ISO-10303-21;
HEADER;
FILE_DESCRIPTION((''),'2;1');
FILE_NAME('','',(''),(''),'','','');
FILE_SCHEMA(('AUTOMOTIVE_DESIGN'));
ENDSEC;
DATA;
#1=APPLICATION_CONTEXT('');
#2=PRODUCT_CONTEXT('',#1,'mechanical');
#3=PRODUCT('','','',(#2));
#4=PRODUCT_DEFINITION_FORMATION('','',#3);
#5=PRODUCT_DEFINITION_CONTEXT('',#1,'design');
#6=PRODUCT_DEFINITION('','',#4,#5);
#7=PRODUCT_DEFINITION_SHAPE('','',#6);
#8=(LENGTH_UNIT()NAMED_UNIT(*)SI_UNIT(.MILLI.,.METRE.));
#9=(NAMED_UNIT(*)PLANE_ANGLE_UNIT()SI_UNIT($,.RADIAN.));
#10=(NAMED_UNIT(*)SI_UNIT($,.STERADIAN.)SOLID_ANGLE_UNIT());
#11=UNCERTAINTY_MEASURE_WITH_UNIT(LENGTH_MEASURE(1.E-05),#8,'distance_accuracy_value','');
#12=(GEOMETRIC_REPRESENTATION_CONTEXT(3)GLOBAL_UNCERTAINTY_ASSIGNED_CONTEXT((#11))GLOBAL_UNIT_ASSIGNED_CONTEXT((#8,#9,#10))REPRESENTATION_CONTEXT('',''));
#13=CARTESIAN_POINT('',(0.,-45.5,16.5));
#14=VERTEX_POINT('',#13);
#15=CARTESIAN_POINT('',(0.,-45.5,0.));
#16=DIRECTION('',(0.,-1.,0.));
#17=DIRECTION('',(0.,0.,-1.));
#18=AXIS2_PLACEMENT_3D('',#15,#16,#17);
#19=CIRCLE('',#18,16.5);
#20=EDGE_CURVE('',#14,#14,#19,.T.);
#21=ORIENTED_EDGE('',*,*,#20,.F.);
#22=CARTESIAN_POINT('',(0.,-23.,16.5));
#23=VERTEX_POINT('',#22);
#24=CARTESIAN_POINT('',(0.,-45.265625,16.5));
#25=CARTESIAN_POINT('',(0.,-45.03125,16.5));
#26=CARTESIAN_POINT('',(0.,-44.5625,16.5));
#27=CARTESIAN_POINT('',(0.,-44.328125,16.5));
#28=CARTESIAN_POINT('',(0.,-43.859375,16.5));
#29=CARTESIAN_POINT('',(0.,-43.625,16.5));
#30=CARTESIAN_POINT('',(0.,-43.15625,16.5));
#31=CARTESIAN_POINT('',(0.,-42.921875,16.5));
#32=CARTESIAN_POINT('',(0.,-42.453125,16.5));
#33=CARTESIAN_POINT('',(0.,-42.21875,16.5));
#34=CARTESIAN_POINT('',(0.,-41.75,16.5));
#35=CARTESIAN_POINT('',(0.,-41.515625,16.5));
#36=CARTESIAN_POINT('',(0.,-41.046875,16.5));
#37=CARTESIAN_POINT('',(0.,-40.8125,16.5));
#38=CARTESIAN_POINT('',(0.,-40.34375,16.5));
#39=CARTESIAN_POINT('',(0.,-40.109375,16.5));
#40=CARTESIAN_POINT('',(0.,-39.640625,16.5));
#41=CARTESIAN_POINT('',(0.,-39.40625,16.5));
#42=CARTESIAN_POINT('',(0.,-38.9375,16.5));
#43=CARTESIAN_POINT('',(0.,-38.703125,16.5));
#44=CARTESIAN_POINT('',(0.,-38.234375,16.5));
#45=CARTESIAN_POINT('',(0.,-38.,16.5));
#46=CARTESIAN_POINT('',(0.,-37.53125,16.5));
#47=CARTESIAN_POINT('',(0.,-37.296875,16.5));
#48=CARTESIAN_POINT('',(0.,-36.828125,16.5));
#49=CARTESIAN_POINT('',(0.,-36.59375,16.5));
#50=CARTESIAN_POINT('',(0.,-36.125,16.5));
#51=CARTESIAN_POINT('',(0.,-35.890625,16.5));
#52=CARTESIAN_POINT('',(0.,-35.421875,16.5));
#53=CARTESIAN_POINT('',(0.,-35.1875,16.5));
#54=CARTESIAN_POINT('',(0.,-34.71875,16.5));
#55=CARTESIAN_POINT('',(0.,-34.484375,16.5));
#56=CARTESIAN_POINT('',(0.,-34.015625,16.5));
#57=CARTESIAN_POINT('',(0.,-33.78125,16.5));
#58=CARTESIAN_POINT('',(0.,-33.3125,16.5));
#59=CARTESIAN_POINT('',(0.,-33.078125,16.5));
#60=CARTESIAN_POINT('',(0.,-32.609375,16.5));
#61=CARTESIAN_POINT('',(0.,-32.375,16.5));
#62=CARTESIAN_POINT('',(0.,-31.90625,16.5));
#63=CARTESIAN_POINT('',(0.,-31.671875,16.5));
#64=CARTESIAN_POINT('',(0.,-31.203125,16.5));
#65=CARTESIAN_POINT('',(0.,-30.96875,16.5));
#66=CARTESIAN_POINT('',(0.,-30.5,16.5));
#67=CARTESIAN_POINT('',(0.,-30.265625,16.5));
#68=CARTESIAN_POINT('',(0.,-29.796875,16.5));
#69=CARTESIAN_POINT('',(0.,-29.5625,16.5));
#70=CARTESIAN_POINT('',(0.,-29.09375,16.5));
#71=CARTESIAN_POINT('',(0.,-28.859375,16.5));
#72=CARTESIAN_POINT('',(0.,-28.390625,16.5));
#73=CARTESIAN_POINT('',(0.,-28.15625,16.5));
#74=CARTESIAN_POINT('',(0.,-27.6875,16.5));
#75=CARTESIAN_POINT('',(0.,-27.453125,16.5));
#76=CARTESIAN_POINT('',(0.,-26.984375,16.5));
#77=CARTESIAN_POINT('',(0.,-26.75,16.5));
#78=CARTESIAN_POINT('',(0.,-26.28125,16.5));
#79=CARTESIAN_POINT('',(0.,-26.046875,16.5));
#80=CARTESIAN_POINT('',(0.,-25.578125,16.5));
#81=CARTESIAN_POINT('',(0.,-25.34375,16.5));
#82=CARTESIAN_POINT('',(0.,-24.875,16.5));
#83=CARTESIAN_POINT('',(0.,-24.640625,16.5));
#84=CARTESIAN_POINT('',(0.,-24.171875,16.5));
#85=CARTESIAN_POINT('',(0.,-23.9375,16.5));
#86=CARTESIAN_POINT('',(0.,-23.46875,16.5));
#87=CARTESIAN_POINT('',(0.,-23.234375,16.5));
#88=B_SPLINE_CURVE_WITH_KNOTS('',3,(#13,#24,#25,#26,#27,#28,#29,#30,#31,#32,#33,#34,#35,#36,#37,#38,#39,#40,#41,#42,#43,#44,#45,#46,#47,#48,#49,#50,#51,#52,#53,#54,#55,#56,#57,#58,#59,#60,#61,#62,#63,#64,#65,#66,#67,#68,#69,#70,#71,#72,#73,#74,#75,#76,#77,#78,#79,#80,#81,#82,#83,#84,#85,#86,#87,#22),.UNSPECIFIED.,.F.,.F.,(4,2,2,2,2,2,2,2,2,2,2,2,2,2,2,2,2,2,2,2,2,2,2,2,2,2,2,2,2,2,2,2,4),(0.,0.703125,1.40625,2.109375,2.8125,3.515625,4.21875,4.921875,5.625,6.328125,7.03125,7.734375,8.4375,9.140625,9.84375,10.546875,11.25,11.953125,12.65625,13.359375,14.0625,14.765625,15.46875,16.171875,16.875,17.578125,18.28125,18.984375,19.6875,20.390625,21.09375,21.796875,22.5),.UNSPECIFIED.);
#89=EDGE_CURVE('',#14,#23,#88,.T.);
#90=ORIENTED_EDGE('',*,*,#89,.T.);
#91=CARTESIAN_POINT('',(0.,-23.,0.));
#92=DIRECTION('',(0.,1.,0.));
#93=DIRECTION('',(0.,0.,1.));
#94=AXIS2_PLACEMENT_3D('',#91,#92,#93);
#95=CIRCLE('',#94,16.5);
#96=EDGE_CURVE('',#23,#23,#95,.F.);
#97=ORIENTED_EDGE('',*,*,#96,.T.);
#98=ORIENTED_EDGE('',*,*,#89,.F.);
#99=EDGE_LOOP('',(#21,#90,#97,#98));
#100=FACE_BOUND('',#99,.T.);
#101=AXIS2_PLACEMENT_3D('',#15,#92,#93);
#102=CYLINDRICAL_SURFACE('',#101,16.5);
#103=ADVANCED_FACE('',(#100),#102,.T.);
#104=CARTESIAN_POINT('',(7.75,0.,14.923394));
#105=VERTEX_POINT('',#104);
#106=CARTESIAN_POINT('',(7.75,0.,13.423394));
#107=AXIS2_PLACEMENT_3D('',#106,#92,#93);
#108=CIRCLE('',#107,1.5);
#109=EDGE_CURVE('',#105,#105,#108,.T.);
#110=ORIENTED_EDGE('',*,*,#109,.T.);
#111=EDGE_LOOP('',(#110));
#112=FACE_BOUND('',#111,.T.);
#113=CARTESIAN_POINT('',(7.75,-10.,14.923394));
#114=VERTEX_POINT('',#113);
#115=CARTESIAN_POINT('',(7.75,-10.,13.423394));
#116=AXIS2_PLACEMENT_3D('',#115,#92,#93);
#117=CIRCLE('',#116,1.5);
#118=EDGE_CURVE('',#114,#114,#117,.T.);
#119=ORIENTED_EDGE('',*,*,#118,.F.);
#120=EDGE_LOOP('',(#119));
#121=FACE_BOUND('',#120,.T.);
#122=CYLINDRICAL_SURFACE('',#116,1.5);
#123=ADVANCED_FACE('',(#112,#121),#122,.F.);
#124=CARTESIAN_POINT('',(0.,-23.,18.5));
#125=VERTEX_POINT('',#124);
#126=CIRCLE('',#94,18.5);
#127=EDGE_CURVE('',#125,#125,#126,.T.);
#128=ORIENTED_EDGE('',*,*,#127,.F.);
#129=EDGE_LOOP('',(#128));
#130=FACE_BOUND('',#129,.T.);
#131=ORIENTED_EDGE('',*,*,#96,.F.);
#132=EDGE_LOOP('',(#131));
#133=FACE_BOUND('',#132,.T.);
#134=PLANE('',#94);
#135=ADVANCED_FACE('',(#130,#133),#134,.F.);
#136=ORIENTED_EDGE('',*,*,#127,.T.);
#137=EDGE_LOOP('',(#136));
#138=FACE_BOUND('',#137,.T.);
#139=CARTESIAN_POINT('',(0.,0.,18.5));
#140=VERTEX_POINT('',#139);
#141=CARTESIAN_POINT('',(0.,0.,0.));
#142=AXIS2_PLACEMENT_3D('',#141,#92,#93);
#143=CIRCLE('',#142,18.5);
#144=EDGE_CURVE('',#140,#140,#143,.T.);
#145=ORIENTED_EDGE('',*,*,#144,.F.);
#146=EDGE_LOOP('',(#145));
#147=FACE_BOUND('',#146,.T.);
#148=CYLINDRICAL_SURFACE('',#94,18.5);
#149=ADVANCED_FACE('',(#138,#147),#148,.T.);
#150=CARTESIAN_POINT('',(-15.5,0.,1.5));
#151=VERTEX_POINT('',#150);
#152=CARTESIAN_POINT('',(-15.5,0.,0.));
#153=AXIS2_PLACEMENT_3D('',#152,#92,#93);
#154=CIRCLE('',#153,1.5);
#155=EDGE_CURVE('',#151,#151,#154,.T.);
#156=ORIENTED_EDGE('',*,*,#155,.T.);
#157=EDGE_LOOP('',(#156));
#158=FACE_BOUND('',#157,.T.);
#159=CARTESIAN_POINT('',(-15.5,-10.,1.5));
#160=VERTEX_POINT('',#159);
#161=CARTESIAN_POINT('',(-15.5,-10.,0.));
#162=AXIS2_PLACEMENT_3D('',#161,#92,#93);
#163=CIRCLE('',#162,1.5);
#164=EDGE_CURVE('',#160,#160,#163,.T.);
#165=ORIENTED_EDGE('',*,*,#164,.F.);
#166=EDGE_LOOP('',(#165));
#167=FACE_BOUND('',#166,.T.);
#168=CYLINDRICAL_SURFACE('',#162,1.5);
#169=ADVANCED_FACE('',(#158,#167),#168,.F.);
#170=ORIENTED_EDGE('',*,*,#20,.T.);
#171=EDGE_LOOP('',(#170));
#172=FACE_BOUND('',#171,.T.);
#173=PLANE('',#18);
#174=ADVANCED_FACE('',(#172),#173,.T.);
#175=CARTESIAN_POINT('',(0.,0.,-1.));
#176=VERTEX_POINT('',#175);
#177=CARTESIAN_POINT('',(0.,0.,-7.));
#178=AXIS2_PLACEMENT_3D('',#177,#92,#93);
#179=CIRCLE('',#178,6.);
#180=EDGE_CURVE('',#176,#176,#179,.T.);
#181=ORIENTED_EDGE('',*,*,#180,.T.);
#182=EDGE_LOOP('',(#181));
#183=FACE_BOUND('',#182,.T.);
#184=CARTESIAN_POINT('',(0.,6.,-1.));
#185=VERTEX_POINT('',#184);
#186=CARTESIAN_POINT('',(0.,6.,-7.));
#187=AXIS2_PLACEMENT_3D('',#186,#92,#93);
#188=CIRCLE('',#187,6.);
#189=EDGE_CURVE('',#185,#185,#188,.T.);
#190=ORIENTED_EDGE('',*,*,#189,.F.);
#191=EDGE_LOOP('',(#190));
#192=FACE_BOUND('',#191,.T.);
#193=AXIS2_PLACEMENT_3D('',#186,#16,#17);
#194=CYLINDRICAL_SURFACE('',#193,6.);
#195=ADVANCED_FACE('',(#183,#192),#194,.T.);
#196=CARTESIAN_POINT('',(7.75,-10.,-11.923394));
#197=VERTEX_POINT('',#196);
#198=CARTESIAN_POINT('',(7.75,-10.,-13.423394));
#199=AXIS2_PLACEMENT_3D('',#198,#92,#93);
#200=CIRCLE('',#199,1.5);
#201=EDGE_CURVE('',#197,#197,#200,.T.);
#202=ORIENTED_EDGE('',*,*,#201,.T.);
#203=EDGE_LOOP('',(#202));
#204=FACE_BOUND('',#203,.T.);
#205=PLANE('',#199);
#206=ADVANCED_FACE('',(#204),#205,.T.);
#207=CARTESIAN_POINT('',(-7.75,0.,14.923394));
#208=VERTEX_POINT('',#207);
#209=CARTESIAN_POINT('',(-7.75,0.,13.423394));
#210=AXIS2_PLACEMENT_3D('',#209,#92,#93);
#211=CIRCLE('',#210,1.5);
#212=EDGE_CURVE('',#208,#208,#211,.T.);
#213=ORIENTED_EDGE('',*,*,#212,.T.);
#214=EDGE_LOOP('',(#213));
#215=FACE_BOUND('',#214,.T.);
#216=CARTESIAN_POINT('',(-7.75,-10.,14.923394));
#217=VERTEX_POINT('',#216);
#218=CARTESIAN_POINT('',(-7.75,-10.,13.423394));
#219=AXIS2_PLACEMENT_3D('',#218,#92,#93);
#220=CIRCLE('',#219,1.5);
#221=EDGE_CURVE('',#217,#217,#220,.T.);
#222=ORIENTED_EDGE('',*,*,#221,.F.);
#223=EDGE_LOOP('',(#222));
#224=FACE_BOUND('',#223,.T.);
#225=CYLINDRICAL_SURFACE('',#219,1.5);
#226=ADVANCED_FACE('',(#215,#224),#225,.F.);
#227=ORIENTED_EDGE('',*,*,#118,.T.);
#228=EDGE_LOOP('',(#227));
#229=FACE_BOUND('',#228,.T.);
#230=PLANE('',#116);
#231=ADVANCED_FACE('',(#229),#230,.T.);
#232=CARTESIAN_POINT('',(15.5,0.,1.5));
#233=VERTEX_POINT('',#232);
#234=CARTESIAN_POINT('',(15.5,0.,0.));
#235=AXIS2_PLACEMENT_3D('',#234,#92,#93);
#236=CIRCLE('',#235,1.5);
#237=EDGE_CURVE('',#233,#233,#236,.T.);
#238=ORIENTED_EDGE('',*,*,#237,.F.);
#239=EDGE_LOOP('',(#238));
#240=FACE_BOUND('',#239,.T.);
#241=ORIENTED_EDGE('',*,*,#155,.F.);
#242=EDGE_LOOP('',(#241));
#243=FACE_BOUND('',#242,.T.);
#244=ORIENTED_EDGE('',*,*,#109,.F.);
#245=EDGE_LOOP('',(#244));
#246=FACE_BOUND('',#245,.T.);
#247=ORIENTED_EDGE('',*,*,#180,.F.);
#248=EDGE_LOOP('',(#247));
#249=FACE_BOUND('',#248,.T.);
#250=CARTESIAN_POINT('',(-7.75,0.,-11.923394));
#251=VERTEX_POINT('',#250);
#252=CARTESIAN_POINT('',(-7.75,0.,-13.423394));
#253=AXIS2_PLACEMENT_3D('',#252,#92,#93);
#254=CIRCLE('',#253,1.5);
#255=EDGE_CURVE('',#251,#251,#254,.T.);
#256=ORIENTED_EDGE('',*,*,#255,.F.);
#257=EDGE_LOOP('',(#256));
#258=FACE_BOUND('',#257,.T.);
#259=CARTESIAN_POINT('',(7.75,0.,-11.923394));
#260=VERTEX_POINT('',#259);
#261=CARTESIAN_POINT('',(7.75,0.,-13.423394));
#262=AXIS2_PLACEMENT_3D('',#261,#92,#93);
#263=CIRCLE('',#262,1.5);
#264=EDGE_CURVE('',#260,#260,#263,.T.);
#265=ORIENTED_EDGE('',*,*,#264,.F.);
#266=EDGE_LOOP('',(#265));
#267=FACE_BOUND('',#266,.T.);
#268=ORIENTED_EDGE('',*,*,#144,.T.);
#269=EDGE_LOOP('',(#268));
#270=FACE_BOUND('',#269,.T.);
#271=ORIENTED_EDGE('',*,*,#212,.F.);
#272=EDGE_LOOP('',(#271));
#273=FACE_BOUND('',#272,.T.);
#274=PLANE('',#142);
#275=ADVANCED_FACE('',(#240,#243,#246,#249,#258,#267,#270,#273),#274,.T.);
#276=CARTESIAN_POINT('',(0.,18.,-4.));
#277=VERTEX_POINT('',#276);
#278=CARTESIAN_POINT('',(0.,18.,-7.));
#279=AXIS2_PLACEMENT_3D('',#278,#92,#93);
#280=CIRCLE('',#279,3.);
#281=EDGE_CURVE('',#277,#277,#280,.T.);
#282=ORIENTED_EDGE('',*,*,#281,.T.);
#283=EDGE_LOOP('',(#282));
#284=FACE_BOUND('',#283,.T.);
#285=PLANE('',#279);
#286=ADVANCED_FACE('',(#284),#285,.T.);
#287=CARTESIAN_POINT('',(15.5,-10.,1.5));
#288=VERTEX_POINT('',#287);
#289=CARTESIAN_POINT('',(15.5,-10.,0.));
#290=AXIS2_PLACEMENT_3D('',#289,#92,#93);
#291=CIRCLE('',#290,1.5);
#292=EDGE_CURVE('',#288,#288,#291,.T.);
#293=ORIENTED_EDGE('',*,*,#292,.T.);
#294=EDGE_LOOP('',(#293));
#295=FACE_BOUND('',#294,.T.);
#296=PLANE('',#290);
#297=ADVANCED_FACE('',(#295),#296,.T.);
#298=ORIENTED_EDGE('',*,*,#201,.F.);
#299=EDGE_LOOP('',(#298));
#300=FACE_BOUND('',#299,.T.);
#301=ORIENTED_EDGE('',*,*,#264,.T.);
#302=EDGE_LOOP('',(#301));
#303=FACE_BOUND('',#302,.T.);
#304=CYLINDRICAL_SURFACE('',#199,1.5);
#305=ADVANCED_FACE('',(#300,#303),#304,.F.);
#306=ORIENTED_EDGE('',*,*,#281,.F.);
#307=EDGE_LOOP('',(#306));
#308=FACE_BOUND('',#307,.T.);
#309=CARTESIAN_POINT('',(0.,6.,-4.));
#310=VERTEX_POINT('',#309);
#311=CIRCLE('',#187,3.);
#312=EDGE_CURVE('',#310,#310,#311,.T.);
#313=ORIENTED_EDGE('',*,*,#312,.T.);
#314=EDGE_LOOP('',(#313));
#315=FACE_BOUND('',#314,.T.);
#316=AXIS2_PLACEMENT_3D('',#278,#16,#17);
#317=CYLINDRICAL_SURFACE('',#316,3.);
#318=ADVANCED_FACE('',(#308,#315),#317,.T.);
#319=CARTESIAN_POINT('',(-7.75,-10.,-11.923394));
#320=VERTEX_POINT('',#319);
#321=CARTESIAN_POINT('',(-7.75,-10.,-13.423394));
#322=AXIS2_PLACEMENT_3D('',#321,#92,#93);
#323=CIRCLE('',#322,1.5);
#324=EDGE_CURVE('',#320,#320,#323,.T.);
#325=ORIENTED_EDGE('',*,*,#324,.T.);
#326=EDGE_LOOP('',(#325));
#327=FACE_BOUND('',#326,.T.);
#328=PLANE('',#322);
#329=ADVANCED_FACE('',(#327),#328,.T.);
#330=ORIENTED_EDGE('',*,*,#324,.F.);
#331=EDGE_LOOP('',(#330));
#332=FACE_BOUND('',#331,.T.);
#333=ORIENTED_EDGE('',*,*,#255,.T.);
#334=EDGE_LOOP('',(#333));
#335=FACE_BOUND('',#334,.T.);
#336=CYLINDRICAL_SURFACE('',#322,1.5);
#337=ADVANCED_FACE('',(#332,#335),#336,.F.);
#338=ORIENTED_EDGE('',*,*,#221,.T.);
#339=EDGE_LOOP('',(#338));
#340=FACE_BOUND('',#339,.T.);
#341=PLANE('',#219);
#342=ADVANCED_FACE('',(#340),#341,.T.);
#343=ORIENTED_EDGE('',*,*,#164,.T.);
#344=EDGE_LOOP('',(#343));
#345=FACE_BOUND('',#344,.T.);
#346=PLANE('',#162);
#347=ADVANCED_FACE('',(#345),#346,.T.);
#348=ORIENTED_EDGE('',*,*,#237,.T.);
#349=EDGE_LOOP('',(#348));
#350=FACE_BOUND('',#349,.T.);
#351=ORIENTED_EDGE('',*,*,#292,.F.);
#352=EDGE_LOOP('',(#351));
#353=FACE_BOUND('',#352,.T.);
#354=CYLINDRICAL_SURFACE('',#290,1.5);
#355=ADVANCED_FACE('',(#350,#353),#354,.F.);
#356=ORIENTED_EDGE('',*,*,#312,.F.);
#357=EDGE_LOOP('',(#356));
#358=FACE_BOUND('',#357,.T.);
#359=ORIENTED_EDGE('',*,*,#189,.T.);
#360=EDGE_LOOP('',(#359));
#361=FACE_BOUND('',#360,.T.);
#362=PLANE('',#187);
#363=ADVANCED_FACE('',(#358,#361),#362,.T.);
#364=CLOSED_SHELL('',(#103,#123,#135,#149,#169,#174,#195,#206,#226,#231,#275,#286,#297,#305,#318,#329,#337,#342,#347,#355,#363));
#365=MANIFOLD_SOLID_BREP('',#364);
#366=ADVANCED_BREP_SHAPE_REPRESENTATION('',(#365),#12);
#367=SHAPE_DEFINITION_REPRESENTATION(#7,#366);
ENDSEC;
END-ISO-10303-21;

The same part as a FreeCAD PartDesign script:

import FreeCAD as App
import Part
import Sketcher

V = App.Vector
Q = App.Units.Quantity

doc = App.newDocument("Part")
body = doc.addObject("PartDesign::Body", "Body")

# Sketch on XZ plane
sketch1 = body.newObject("Sketcher::SketchObject", "Sketch")
sketch1.AttachmentSupport = (doc.getObject("XZ_Plane"), [""])
sketch1.MapMode = "FlatFace"
sketch1.addGeometry(Part.Circle(V(0, 0, 0), V(0, 0, 1), 18), False)
sketch1.addConstraint([
    Sketcher.Constraint("Coincident", 0, 3, -1, 1),
    Sketcher.Constraint("Diameter", 0, Q("37 mm")),
])
pad1 = body.newObject("PartDesign::Pad", "Pad")
pad1.Profile = sketch1
pad1.Length = 23

# Sketch on XZ plane
sketch2 = body.newObject("Sketcher::SketchObject", "Sketch001")
sketch2.AttachmentSupport = (doc.getObject("XZ_Plane"), [""])
sketch2.MapMode = "FlatFace"
sketch2.AttachmentOffset = App.Placement(V(0, 0, 23), App.Rotation())
sketch2.addGeometry(Part.Circle(V(0, 0, 0), V(0, 0, 1), 16), False)
sketch2.addConstraint([
    Sketcher.Constraint("Coincident", 0, 3, -1, 1),
    Sketcher.Constraint("Diameter", 0, Q("33 mm")),
])
pad2 = body.newObject("PartDesign::Pad", "Pad001")
pad2.Profile = sketch2
pad2.Length = 22.5

# Sketch on XZ plane
sketch3 = body.newObject("Sketcher::SketchObject", "Sketch002")
sketch3.AttachmentSupport = (doc.getObject("XZ_Plane"), [""])
sketch3.MapMode = "FlatFace"
sketch3.addGeometry([
    Part.Circle(V(-15.5, 0, 0), V(0, 0, 1), 1.5),  # 0
    Part.Circle(V(-7.8, -13.4, 0), V(0, 0, 1), 1.5),  # 1
    Part.Circle(V(7.8, -13.4, 0), V(0, 0, 1), 1.5),  # 2
    Part.Circle(V(15.5, 0, 0), V(0, 0, 1), 1.5),  # 3
    Part.Circle(V(7.8, 13.4, 0), V(0, 0, 1), 1.5),  # 4
    Part.Circle(V(-7.8, 13.4, 0), V(0, 0, 1), 1.5),  # 5
], False)
sketch3.addConstraint([
    Sketcher.Constraint("Equal", 0, 1),
    Sketcher.Constraint("Equal", 1, 2),
    Sketcher.Constraint("Equal", 2, 3),
    Sketcher.Constraint("Equal", 3, 4),
    Sketcher.Constraint("Equal", 4, 5),
    Sketcher.Constraint("Symmetric", 0, 3, 3, 3, -1, 1),
    Sketcher.Constraint("Symmetric", 1, 3, 4, 3, -1, 1),
    Sketcher.Constraint("Symmetric", 2, 3, 5, 3, -1, 1),
    Sketcher.Constraint("Symmetric", 1, 3, 2, 3, -2),
    Sketcher.Constraint("PointOnObject", 0, 3, -1),
    Sketcher.Constraint("Diameter", 0, Q("3 mm")),
    Sketcher.Constraint("DistanceX", 0, 3, 3, 3, Q("31 mm")),
    Sketcher.Constraint("DistanceX", 1, 3, 2, 3, Q("15.5 mm")),
    Sketcher.Constraint("DistanceY", 1, 3, -1, 1, Q("13.423394 mm")),
])
pocket1 = body.newObject("PartDesign::Pocket", "Pocket")
pocket1.Profile = sketch3
pocket1.Length = 10
pocket1.Reversed = True

# Sketch on XZ plane
sketch4 = body.newObject("Sketcher::SketchObject", "Sketch003")
sketch4.AttachmentSupport = (doc.getObject("XZ_Plane"), [""])
sketch4.MapMode = "FlatFace"
sketch4.addGeometry(Part.Circle(V(0, -7, 0), V(0, 0, 1), 6), False)
sketch4.addConstraint([
    Sketcher.Constraint("PointOnObject", 0, 3, -2),
    Sketcher.Constraint("Diameter", 0, Q("12 mm")),
    Sketcher.Constraint("DistanceY", 0, 3, -1, 1, Q("7 mm")),
])
pad3 = body.newObject("PartDesign::Pad", "Pad002")
pad3.Profile = sketch4
pad3.Length = 6
pad3.Reversed = True

# Sketch on XZ plane
sketch5 = body.newObject("Sketcher::SketchObject", "Sketch004")
sketch5.AttachmentSupport = (doc.getObject("XZ_Plane"), [""])
sketch5.MapMode = "FlatFace"
sketch5.AttachmentOffset = App.Placement(V(0, 0, -6), App.Rotation())
sketch5.addGeometry(Part.Circle(V(0, -7, 0), V(0, 0, 1), 3), False)
sketch5.addConstraint([
    Sketcher.Constraint("PointOnObject", 0, 3, -2),
    Sketcher.Constraint("Diameter", 0, Q("6 mm")),
    Sketcher.Constraint("DistanceY", 0, 3, -1, 1, Q("7 mm")),
])
pad4 = body.newObject("PartDesign::Pad", "Pad003")
pad4.Profile = sketch5
pad4.Length = 12
pad4.Reversed = True

doc.recompute()
